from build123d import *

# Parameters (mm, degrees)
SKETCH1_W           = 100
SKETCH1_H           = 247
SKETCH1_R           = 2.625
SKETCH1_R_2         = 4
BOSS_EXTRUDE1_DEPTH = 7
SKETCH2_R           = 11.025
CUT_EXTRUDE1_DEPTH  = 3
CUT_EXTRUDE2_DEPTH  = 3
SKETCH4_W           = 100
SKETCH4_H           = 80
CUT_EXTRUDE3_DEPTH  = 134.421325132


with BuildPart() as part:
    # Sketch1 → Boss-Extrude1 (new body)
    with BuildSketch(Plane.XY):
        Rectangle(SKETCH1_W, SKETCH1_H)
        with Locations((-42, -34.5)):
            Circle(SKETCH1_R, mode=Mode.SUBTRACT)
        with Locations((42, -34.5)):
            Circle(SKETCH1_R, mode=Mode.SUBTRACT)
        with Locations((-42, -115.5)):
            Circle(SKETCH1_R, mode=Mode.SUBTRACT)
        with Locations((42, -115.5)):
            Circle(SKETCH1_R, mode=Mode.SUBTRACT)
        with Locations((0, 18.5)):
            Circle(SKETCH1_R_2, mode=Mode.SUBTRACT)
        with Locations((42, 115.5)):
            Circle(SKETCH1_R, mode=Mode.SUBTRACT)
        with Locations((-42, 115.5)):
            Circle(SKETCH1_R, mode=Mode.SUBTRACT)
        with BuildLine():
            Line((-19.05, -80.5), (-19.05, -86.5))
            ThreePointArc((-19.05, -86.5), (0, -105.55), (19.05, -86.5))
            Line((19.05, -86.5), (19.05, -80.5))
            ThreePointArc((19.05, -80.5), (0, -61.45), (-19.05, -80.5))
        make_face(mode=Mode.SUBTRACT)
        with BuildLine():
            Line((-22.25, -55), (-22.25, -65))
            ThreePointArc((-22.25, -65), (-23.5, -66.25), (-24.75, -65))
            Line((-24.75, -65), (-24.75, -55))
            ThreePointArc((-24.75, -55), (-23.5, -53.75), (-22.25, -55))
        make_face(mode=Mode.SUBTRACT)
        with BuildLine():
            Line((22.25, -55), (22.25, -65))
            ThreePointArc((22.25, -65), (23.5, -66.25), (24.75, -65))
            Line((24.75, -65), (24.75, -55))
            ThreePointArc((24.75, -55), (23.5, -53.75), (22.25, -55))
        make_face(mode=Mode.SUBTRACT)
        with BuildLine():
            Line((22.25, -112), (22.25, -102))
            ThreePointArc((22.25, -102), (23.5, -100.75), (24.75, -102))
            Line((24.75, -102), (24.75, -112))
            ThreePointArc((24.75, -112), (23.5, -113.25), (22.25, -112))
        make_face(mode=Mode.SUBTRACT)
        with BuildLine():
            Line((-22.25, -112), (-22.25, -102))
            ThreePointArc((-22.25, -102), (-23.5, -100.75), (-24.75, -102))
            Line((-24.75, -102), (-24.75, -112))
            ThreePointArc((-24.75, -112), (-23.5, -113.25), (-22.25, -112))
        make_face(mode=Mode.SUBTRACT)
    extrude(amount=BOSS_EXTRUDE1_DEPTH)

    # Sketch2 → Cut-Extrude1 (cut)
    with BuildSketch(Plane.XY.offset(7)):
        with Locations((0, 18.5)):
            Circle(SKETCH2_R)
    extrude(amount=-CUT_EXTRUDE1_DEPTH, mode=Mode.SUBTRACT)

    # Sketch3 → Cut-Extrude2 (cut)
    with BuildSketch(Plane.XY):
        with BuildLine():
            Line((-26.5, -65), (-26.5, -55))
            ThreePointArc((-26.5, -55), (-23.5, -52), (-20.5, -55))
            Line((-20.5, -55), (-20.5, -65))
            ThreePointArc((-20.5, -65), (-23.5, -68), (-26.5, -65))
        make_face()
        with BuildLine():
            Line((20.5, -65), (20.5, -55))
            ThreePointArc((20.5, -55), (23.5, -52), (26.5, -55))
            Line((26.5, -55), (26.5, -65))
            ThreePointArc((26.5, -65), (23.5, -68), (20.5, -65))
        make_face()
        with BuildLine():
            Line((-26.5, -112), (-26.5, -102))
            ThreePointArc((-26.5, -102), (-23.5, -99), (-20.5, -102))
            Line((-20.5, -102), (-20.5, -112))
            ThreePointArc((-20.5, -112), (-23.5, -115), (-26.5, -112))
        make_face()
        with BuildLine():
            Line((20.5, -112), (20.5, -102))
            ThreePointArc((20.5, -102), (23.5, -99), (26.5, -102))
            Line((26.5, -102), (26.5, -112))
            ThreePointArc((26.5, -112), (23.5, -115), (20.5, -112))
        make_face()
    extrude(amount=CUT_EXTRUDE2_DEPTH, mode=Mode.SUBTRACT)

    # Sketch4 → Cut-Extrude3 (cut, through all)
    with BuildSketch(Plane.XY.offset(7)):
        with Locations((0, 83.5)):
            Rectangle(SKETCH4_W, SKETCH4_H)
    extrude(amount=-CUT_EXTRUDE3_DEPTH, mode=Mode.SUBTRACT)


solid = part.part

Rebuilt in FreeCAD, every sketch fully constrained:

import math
import FreeCAD as App
import Part
import Sketcher
from FreeCAD import Vector

doc = App.newDocument("Part")
params = doc.addObject("Spreadsheet::Sheet", "Params")
for row, (alias, value) in enumerate([
    ("sketch1_diameter", "8 mm"),
    ("sketch1_diameter2", "5.25 mm"),
    ("sketch1_width", "100 mm"),
    ("sketch1_height", "247 mm"),
    ("sketch1_height2", "10 mm"),
    ("pad1_length", "7 mm"),
    ("sketch2_diameter", "22.05 mm"),
    ("pocket1_length", "3 mm"),
    ("sketch3_radius", "3 mm"),
    ("sketch3_height", "10 mm"),
    ("pocket2_length", "3 mm"),
    ("sketch4_width", "100 mm"),
    ("sketch4_height", "80 mm"),
], start=1):
    params.set(f"A{row}", alias)
    params.set(f"B{row}", "=" + value)
    params.setAlias(f"B{row}", alias)

body = doc.addObject("PartDesign::Body", "Body")

sketch1 = doc.addObject("Sketcher::SketchObject", "Sketch")
body.addObject(sketch1)
sketch1.AttachmentSupport = (doc.XY_Plane, [""])
sketch1.MapMode = "FlatFace"
sketch1.addGeometry([
    Part.LineSegment(Vector(-50, 123.5, 0), Vector(-50, -123.5, 0)),
    Part.LineSegment(Vector(-50, -123.5, 0), Vector(50, -123.5, 0)),
    Part.LineSegment(Vector(50, -123.5, 0), Vector(50, 123.5, 0)),
    Part.LineSegment(Vector(50, 123.5, 0), Vector(-50, 123.5, 0)),
    Part.Circle(Vector(-42, -115.5, 0), Vector(0, 0, 1), 2.6),
    Part.LineSegment(Vector(-22.2, -102, 0), Vector(-22.2, -112, 0)),
    Part.ArcOfCircle(Part.Circle(Vector(-23.5, -112, 0), Vector(0, 0, 1), 1.2), math.radians(180), math.radians(360)),
    Part.LineSegment(Vector(-24.8, -112, 0), Vector(-24.8, -102, 0)),
    Part.ArcOfCircle(Part.Circle(Vector(-23.5, -102, 0), Vector(0, 0, 1), 1.2), math.radians(0), math.radians(180)),
    Part.ArcOfCircle(Part.Circle(Vector(-23.5, -55, 0), Vector(0, 0, 1), 1.2), math.radians(0), math.radians(180)),
    Part.LineSegment(Vector(-22.2, -55, 0), Vector(-22.2, -65, 0)),
    Part.ArcOfCircle(Part.Circle(Vector(-23.5, -65, 0), Vector(0, 0, 1), 1.2), math.radians(180), math.radians(360)),
    Part.LineSegment(Vector(-24.8, -65, 0), Vector(-24.8, -55, 0)),
    Part.Circle(Vector(-42, -34.5, 0), Vector(0, 0, 1), 2.6),
    Part.LineSegment(Vector(-19.1, -86.5, 0), Vector(-19.1, -80.5, 0)),
    Part.ArcOfCircle(Part.Circle(Vector(0, -80.5, 0), Vector(0, 0, 1), 19.1), math.radians(0), math.radians(180)),
    Part.LineSegment(Vector(19.1, -80.5, 0), Vector(19.1, -86.5, 0)),
    Part.ArcOfCircle(Part.Circle(Vector(0, -86.5, 0), Vector(0, 0, 1), 19.1), math.radians(180), math.radians(360)),
    Part.ArcOfCircle(Part.Circle(Vector(23.5, -112, 0), Vector(0, 0, 1), 1.2), math.radians(180), math.radians(360)),
    Part.LineSegment(Vector(22.2, -112, 0), Vector(22.2, -102, 0)),
    Part.ArcOfCircle(Part.Circle(Vector(23.5, -102, 0), Vector(0, 0, 1), 1.2), math.radians(0), math.radians(180)),
    Part.LineSegment(Vector(24.8, -102, 0), Vector(24.8, -112, 0)),
    Part.Circle(Vector(42, -115.5, 0), Vector(0, 0, 1), 2.6),
    Part.LineSegment(Vector(22.2, -65, 0), Vector(22.2, -55, 0)),
    Part.ArcOfCircle(Part.Circle(Vector(23.5, -55, 0), Vector(0, 0, 1), 1.2), math.radians(0), math.radians(180)),
    Part.LineSegment(Vector(24.8, -55, 0), Vector(24.8, -65, 0)),
    Part.ArcOfCircle(Part.Circle(Vector(23.5, -65, 0), Vector(0, 0, 1), 1.2), math.radians(180), math.radians(360)),
    Part.Circle(Vector(42, -34.5, 0), Vector(0, 0, 1), 2.6),
    Part.Circle(Vector(-42, 115.5, 0), Vector(0, 0, 1), 2.6),
    Part.Circle(Vector(0, 18.5, 0), Vector(0, 0, 1), 4),
    Part.Circle(Vector(42, 115.5, 0), Vector(0, 0, 1), 2.6),
], False)
sketch1.addConstraint([
    Sketcher.Constraint("Coincident", 0, 2, 1, 1),
    Sketcher.Constraint("Coincident", 1, 2, 2, 1),
    Sketcher.Constraint("Coincident", 2, 2, 3, 1),
    Sketcher.Constraint("Coincident", 3, 2, 0, 1),
    Sketcher.Constraint("Tangent", 5, 2, 6, 2),
    Sketcher.Constraint("Tangent", 6, 1, 7, 1),
    Sketcher.Constraint("Tangent", 7, 2, 8, 2),
    Sketcher.Constraint("Tangent", 8, 1, 5, 1),
    Sketcher.Constraint("Tangent", 9, 1, 10, 1),
    Sketcher.Constraint("Tangent", 10, 2, 11, 2),
    Sketcher.Constraint("Tangent", 11, 1, 12, 1),
    Sketcher.Constraint("Tangent", 12, 2, 9, 2),
    Sketcher.Constraint("Tangent", 14, 2, 15, 2),
    Sketcher.Constraint("Tangent", 15, 1, 16, 1),
    Sketcher.Constraint("Tangent", 16, 2, 17, 2),
    Sketcher.Constraint("Tangent", 17, 1, 14, 1),
    Sketcher.Constraint("Tangent", 18, 1, 19, 1),
    Sketcher.Constraint("Tangent", 19, 2, 20, 2),
    Sketcher.Constraint("Tangent", 20, 1, 21, 1),
    Sketcher.Constraint("Tangent", 21, 2, 18, 2),
    Sketcher.Constraint("Tangent", 23, 2, 24, 2),
    Sketcher.Constraint("Tangent", 24, 1, 25, 1),
    Sketcher.Constraint("Tangent", 25, 2, 26, 2),
    Sketcher.Constraint("Tangent", 26, 1, 23, 1),
    Sketcher.Constraint("Vertical", 0),
    Sketcher.Constraint("Horizontal", 1),
    Sketcher.Constraint("Vertical", 2),
    Sketcher.Constraint("Horizontal", 3),
    Sketcher.Constraint("Vertical", 5),
    Sketcher.Constraint("Vertical", 7),
    Sketcher.Constraint("Vertical", 10),
    Sketcher.Constraint("Vertical", 12),
    Sketcher.Constraint("Vertical", 14),
    Sketcher.Constraint("Vertical", 16),
    Sketcher.Constraint("Vertical", 19),
    Sketcher.Constraint("Vertical", 21),
    Sketcher.Constraint("Vertical", 23),
    Sketcher.Constraint("Vertical", 25),
    Sketcher.Constraint("Equal", 8, 9),
    Sketcher.Constraint("Equal", 4, 13),
    Sketcher.Constraint("Equal", 11, 18),
    Sketcher.Constraint("Equal", 13, 22),
    Sketcher.Constraint("Equal", 20, 24),
    Sketcher.Constraint("Equal", 22, 27),
    Sketcher.Constraint("Equal", 27, 28),
    Sketcher.Constraint("Equal", 28, 30),
    Sketcher.Constraint("Symmetric", 22, 3, 28, 3, -1, 1),
    Sketcher.Constraint("Symmetric", 4, 3, 30, 3, -1, 1),
    Sketcher.Constraint("Symmetric", 0, 2, 2, 2, -1, 1),
    Sketcher.Constraint("Symmetric", 6, 3, 18, 3, -2),
    Sketcher.Constraint("Symmetric", 4, 3, 22, 3, -2),
    Sketcher.Constraint("Symmetric", 9, 3, 24, 3, -2),
    Sketcher.Constraint("Symmetric", 13, 3, 27, 3, -2),
    Sketcher.Constraint("PointOnObject", 15, 3, -2),
    Sketcher.Constraint("PointOnObject", 29, 3, -2),
    Sketcher.Constraint("Horizontal", 8, 3, 20, 3),
    Sketcher.Constraint("Horizontal", 11, 3, 26, 3),
    Sketcher.Constraint("Vertical", 8, 3, 9, 3),
    Sketcher.Constraint("Vertical", 4, 3, 13, 3),
    Sketcher.Constraint("Equal", 7, 10),
    Sketcher.Constraint("Diameter", 29, 8.0),
    Sketcher.Constraint("Diameter", 4, 5.25),
    Sketcher.Constraint("DistanceX", 1, 1, 1, 2, 100.0),
    Sketcher.Constraint("DistanceY", 0, 2, 0, 1, 247.0),
    Sketcher.Constraint("DistanceY", 5, 2, 5, 1, 10.0),
    Sketcher.Constraint("DistanceY", 14, 1, 14, 2, 6.0),
    Sketcher.Constraint("Radius", 6, 1.25),
    Sketcher.Constraint("Radius", 15, 19.05),
    Sketcher.Constraint("DistanceX", 4, 3, -1, 1, 42.0),
    Sketcher.Constraint("DistanceY", 6, 3, -1, 1, 112.0),
    Sketcher.Constraint("DistanceY", 9, 3, -1, 1, 55.0),
    Sketcher.Constraint("DistanceY", 4, 3, 13, 3, 81.0),
    Sketcher.Constraint("DistanceY", 4, 3, 15, 3, 35.0),
    Sketcher.Constraint("DistanceX", 6, 3, 18, 3, 47.0),
    Sketcher.Constraint("DistanceY", 13, 3, 28, 3, 150.0),
    Sketcher.Constraint("DistanceY", 13, 3, 29, 3, 53.0),
])
sketch1.setExpression("Constraints[60]", "Params.sketch1_diameter")
sketch1.setExpression("Constraints[61]", "Params.sketch1_diameter2")
sketch1.setExpression("Constraints[62]", "Params.sketch1_width")
sketch1.setExpression("Constraints[63]", "Params.sketch1_height")
sketch1.setExpression("Constraints[64]", "Params.sketch1_height2")
pad1 = doc.addObject("PartDesign::Pad", "Pad")
body.addObject(pad1)
pad1.Profile = sketch1
pad1.setExpression("Length", "Params.pad1_length")

sketch2 = doc.addObject("Sketcher::SketchObject", "Sketch001")
body.addObject(sketch2)
sketch2.AttachmentSupport = (doc.XY_Plane, [""])
sketch2.MapMode = "FlatFace"
sketch2.AttachmentOffset = App.Placement(Vector(0, 0, 7), App.Rotation())
sketch2.addGeometry(Part.Circle(Vector(0, 18, 0), Vector(0, 0, 1), 11), False)
sketch2.addConstraint([
    Sketcher.Constraint("PointOnObject", 0, 3, -2),
    Sketcher.Constraint("Diameter", 0, 22.05),
    Sketcher.Constraint("DistanceY", -1, 1, 0, 3, 18.5),
])
sketch2.setExpression("Constraints[1]", "Params.sketch2_diameter")
pocket1 = doc.addObject("PartDesign::Pocket", "Pocket")
body.addObject(pocket1)
pocket1.Profile = sketch2
pocket1.setExpression("Length", "Params.pocket1_length")

sketch3 = doc.addObject("Sketcher::SketchObject", "Sketch002")
body.addObject(sketch3)
sketch3.AttachmentSupport = (doc.XY_Plane, [""])
sketch3.MapMode = "FlatFace"
sketch3.addGeometry([
    Part.LineSegment(Vector(-26.5, -55, 0), Vector(-26.5, -65, 0)),
    Part.ArcOfCircle(Part.Circle(Vector(-23.5, -65, 0), Vector(0, 0, 1), 3), math.radians(180), math.radians(360)),
    Part.LineSegment(Vector(-20.5, -65, 0), Vector(-20.5, -55, 0)),
    Part.ArcOfCircle(Part.Circle(Vector(-23.5, -55, 0), Vector(0, 0, 1), 3), math.radians(0), math.radians(180)),
    Part.LineSegment(Vector(20.5, -55, 0), Vector(20.5, -65, 0)),
    Part.ArcOfCircle(Part.Circle(Vector(23.5, -65, 0), Vector(0, 0, 1), 3), math.radians(180), math.radians(360)),
    Part.LineSegment(Vector(26.5, -65, 0), Vector(26.5, -55, 0)),
    Part.ArcOfCircle(Part.Circle(Vector(23.5, -55, 0), Vector(0, 0, 1), 3), math.radians(0), math.radians(180)),
    Part.LineSegment(Vector(-26.5, -102, 0), Vector(-26.5, -112, 0)),
    Part.ArcOfCircle(Part.Circle(Vector(-23.5, -112, 0), Vector(0, 0, 1), 3), math.radians(180), math.radians(360)),
    Part.LineSegment(Vector(-20.5, -112, 0), Vector(-20.5, -102, 0)),
    Part.ArcOfCircle(Part.Circle(Vector(-23.5, -102, 0), Vector(0, 0, 1), 3), math.radians(0), math.radians(180)),
    Part.LineSegment(Vector(20.5, -102, 0), Vector(20.5, -112, 0)),
    Part.ArcOfCircle(Part.Circle(Vector(23.5, -112, 0), Vector(0, 0, 1), 3), math.radians(180), math.radians(360)),
    Part.LineSegment(Vector(26.5, -112, 0), Vector(26.5, -102, 0)),
    Part.ArcOfCircle(Part.Circle(Vector(23.5, -102, 0), Vector(0, 0, 1), 3), math.radians(0), math.radians(180)),
], False)
sketch3.addConstraint([
    Sketcher.Constraint("Tangent", 0, 2, 1, 1),
    Sketcher.Constraint("Tangent", 1, 2, 2, 1),
    Sketcher.Constraint("Tangent", 2, 2, 3, 1),
    Sketcher.Constraint("Tangent", 3, 2, 0, 1),
    Sketcher.Constraint("Tangent", 4, 2, 5, 1),
    Sketcher.Constraint("Tangent", 5, 2, 6, 1),
    Sketcher.Constraint("Tangent", 6, 2, 7, 1),
    Sketcher.Constraint("Tangent", 7, 2, 4, 1),
    Sketcher.Constraint("Tangent", 8, 2, 9, 1),
    Sketcher.Constraint("Tangent", 9, 2, 10, 1),
    Sketcher.Constraint("Tangent", 10, 2, 11, 1),
    Sketcher.Constraint("Tangent", 11, 2, 8, 1),
    Sketcher.Constraint("Tangent", 12, 2, 13, 1),
    Sketcher.Constraint("Tangent", 13, 2, 14, 1),
    Sketcher.Constraint("Tangent", 14, 2, 15, 1),
    Sketcher.Constraint("Tangent", 15, 2, 12, 1),
    Sketcher.Constraint("Vertical", 0),
    Sketcher.Constraint("Vertical", 2),
    Sketcher.Constraint("Vertical", 4),
    Sketcher.Constraint("Vertical", 6),
    Sketcher.Constraint("Vertical", 8),
    Sketcher.Constraint("Vertical", 10),
    Sketcher.Constraint("Vertical", 12),
    Sketcher.Constraint("Vertical", 14),
    Sketcher.Constraint("Equal", 3, 5),
    Sketcher.Constraint("Equal", 7, 9),
    Sketcher.Constraint("Equal", 11, 13),
    Sketcher.Constraint("Symmetric", 1, 3, 5, 3, -2),
    Sketcher.Constraint("Symmetric", 9, 3, 13, 3, -2),
    Sketcher.Constraint("Horizontal", 3, 3, 7, 3),
    Sketcher.Constraint("Horizontal", 11, 3, 15, 3),
    Sketcher.Constraint("Vertical", 3, 3, 9, 3),
    Sketcher.Constraint("Equal", 6, 8),
    Sketcher.Constraint("Radius", 1, 3.0),
    Sketcher.Constraint("DistanceY", 0, 2, 0, 1, 10.0),
    Sketcher.Constraint("DistanceY", 1, 3, -1, 1, 65.0),
    Sketcher.Constraint("DistanceY", 9, 3, -1, 1, 112.0),
    Sketcher.Constraint("DistanceX", 1, 3, 5, 3, 47.0),
])
sketch3.setExpression("Constraints[33]", "Params.sketch3_radius")
sketch3.setExpression("Constraints[34]", "Params.sketch3_height")
pocket2 = doc.addObject("PartDesign::Pocket", "Pocket001")
body.addObject(pocket2)
pocket2.Profile = sketch3
pocket2.setExpression("Length", "Params.pocket2_length")
pocket2.Reversed = True

sketch4 = doc.addObject("Sketcher::SketchObject", "Sketch003")
body.addObject(sketch4)
sketch4.AttachmentSupport = (doc.XY_Plane, [""])
sketch4.MapMode = "FlatFace"
sketch4.AttachmentOffset = App.Placement(Vector(0, 0, 7), App.Rotation())
sketch4.addGeometry([
    Part.LineSegment(Vector(-50, 124, 0), Vector(-50, 44, 0)),
    Part.LineSegment(Vector(-50, 44, 0), Vector(50, 44, 0)),
    Part.LineSegment(Vector(50, 44, 0), Vector(50, 124, 0)),
    Part.LineSegment(Vector(50, 124, 0), Vector(-50, 124, 0)),
], False)
sketch4.addConstraint([
    Sketcher.Constraint("Coincident", 0, 2, 1, 1),
    Sketcher.Constraint("Coincident", 1, 2, 2, 1),
    Sketcher.Constraint("Coincident", 2, 2, 3, 1),
    Sketcher.Constraint("Coincident", 3, 2, 0, 1),
    Sketcher.Constraint("Vertical", 0),
    Sketcher.Constraint("Horizontal", 1),
    Sketcher.Constraint("Vertical", 2),
    Sketcher.Constraint("Horizontal", 3),
    Sketcher.Constraint("DistanceX", 1, 1, 1, 2, 100.0),
    Sketcher.Constraint("DistanceY", 0, 2, 0, 1, 80.0),
    Sketcher.Constraint("DistanceX", 0, 2, -1, 1, 50.0),
    Sketcher.Constraint("DistanceY", -1, 1, 0, 2, 43.5),
])
sketch4.setExpression("Constraints[8]", "Params.sketch4_width")
sketch4.setExpression("Constraints[9]", "Params.sketch4_height")
pocket3 = doc.addObject("PartDesign::Pocket", "Pocket002")
body.addObject(pocket3)
pocket3.Profile = sketch4
pocket3.Type = "ThroughAll"

doc.recompute()
